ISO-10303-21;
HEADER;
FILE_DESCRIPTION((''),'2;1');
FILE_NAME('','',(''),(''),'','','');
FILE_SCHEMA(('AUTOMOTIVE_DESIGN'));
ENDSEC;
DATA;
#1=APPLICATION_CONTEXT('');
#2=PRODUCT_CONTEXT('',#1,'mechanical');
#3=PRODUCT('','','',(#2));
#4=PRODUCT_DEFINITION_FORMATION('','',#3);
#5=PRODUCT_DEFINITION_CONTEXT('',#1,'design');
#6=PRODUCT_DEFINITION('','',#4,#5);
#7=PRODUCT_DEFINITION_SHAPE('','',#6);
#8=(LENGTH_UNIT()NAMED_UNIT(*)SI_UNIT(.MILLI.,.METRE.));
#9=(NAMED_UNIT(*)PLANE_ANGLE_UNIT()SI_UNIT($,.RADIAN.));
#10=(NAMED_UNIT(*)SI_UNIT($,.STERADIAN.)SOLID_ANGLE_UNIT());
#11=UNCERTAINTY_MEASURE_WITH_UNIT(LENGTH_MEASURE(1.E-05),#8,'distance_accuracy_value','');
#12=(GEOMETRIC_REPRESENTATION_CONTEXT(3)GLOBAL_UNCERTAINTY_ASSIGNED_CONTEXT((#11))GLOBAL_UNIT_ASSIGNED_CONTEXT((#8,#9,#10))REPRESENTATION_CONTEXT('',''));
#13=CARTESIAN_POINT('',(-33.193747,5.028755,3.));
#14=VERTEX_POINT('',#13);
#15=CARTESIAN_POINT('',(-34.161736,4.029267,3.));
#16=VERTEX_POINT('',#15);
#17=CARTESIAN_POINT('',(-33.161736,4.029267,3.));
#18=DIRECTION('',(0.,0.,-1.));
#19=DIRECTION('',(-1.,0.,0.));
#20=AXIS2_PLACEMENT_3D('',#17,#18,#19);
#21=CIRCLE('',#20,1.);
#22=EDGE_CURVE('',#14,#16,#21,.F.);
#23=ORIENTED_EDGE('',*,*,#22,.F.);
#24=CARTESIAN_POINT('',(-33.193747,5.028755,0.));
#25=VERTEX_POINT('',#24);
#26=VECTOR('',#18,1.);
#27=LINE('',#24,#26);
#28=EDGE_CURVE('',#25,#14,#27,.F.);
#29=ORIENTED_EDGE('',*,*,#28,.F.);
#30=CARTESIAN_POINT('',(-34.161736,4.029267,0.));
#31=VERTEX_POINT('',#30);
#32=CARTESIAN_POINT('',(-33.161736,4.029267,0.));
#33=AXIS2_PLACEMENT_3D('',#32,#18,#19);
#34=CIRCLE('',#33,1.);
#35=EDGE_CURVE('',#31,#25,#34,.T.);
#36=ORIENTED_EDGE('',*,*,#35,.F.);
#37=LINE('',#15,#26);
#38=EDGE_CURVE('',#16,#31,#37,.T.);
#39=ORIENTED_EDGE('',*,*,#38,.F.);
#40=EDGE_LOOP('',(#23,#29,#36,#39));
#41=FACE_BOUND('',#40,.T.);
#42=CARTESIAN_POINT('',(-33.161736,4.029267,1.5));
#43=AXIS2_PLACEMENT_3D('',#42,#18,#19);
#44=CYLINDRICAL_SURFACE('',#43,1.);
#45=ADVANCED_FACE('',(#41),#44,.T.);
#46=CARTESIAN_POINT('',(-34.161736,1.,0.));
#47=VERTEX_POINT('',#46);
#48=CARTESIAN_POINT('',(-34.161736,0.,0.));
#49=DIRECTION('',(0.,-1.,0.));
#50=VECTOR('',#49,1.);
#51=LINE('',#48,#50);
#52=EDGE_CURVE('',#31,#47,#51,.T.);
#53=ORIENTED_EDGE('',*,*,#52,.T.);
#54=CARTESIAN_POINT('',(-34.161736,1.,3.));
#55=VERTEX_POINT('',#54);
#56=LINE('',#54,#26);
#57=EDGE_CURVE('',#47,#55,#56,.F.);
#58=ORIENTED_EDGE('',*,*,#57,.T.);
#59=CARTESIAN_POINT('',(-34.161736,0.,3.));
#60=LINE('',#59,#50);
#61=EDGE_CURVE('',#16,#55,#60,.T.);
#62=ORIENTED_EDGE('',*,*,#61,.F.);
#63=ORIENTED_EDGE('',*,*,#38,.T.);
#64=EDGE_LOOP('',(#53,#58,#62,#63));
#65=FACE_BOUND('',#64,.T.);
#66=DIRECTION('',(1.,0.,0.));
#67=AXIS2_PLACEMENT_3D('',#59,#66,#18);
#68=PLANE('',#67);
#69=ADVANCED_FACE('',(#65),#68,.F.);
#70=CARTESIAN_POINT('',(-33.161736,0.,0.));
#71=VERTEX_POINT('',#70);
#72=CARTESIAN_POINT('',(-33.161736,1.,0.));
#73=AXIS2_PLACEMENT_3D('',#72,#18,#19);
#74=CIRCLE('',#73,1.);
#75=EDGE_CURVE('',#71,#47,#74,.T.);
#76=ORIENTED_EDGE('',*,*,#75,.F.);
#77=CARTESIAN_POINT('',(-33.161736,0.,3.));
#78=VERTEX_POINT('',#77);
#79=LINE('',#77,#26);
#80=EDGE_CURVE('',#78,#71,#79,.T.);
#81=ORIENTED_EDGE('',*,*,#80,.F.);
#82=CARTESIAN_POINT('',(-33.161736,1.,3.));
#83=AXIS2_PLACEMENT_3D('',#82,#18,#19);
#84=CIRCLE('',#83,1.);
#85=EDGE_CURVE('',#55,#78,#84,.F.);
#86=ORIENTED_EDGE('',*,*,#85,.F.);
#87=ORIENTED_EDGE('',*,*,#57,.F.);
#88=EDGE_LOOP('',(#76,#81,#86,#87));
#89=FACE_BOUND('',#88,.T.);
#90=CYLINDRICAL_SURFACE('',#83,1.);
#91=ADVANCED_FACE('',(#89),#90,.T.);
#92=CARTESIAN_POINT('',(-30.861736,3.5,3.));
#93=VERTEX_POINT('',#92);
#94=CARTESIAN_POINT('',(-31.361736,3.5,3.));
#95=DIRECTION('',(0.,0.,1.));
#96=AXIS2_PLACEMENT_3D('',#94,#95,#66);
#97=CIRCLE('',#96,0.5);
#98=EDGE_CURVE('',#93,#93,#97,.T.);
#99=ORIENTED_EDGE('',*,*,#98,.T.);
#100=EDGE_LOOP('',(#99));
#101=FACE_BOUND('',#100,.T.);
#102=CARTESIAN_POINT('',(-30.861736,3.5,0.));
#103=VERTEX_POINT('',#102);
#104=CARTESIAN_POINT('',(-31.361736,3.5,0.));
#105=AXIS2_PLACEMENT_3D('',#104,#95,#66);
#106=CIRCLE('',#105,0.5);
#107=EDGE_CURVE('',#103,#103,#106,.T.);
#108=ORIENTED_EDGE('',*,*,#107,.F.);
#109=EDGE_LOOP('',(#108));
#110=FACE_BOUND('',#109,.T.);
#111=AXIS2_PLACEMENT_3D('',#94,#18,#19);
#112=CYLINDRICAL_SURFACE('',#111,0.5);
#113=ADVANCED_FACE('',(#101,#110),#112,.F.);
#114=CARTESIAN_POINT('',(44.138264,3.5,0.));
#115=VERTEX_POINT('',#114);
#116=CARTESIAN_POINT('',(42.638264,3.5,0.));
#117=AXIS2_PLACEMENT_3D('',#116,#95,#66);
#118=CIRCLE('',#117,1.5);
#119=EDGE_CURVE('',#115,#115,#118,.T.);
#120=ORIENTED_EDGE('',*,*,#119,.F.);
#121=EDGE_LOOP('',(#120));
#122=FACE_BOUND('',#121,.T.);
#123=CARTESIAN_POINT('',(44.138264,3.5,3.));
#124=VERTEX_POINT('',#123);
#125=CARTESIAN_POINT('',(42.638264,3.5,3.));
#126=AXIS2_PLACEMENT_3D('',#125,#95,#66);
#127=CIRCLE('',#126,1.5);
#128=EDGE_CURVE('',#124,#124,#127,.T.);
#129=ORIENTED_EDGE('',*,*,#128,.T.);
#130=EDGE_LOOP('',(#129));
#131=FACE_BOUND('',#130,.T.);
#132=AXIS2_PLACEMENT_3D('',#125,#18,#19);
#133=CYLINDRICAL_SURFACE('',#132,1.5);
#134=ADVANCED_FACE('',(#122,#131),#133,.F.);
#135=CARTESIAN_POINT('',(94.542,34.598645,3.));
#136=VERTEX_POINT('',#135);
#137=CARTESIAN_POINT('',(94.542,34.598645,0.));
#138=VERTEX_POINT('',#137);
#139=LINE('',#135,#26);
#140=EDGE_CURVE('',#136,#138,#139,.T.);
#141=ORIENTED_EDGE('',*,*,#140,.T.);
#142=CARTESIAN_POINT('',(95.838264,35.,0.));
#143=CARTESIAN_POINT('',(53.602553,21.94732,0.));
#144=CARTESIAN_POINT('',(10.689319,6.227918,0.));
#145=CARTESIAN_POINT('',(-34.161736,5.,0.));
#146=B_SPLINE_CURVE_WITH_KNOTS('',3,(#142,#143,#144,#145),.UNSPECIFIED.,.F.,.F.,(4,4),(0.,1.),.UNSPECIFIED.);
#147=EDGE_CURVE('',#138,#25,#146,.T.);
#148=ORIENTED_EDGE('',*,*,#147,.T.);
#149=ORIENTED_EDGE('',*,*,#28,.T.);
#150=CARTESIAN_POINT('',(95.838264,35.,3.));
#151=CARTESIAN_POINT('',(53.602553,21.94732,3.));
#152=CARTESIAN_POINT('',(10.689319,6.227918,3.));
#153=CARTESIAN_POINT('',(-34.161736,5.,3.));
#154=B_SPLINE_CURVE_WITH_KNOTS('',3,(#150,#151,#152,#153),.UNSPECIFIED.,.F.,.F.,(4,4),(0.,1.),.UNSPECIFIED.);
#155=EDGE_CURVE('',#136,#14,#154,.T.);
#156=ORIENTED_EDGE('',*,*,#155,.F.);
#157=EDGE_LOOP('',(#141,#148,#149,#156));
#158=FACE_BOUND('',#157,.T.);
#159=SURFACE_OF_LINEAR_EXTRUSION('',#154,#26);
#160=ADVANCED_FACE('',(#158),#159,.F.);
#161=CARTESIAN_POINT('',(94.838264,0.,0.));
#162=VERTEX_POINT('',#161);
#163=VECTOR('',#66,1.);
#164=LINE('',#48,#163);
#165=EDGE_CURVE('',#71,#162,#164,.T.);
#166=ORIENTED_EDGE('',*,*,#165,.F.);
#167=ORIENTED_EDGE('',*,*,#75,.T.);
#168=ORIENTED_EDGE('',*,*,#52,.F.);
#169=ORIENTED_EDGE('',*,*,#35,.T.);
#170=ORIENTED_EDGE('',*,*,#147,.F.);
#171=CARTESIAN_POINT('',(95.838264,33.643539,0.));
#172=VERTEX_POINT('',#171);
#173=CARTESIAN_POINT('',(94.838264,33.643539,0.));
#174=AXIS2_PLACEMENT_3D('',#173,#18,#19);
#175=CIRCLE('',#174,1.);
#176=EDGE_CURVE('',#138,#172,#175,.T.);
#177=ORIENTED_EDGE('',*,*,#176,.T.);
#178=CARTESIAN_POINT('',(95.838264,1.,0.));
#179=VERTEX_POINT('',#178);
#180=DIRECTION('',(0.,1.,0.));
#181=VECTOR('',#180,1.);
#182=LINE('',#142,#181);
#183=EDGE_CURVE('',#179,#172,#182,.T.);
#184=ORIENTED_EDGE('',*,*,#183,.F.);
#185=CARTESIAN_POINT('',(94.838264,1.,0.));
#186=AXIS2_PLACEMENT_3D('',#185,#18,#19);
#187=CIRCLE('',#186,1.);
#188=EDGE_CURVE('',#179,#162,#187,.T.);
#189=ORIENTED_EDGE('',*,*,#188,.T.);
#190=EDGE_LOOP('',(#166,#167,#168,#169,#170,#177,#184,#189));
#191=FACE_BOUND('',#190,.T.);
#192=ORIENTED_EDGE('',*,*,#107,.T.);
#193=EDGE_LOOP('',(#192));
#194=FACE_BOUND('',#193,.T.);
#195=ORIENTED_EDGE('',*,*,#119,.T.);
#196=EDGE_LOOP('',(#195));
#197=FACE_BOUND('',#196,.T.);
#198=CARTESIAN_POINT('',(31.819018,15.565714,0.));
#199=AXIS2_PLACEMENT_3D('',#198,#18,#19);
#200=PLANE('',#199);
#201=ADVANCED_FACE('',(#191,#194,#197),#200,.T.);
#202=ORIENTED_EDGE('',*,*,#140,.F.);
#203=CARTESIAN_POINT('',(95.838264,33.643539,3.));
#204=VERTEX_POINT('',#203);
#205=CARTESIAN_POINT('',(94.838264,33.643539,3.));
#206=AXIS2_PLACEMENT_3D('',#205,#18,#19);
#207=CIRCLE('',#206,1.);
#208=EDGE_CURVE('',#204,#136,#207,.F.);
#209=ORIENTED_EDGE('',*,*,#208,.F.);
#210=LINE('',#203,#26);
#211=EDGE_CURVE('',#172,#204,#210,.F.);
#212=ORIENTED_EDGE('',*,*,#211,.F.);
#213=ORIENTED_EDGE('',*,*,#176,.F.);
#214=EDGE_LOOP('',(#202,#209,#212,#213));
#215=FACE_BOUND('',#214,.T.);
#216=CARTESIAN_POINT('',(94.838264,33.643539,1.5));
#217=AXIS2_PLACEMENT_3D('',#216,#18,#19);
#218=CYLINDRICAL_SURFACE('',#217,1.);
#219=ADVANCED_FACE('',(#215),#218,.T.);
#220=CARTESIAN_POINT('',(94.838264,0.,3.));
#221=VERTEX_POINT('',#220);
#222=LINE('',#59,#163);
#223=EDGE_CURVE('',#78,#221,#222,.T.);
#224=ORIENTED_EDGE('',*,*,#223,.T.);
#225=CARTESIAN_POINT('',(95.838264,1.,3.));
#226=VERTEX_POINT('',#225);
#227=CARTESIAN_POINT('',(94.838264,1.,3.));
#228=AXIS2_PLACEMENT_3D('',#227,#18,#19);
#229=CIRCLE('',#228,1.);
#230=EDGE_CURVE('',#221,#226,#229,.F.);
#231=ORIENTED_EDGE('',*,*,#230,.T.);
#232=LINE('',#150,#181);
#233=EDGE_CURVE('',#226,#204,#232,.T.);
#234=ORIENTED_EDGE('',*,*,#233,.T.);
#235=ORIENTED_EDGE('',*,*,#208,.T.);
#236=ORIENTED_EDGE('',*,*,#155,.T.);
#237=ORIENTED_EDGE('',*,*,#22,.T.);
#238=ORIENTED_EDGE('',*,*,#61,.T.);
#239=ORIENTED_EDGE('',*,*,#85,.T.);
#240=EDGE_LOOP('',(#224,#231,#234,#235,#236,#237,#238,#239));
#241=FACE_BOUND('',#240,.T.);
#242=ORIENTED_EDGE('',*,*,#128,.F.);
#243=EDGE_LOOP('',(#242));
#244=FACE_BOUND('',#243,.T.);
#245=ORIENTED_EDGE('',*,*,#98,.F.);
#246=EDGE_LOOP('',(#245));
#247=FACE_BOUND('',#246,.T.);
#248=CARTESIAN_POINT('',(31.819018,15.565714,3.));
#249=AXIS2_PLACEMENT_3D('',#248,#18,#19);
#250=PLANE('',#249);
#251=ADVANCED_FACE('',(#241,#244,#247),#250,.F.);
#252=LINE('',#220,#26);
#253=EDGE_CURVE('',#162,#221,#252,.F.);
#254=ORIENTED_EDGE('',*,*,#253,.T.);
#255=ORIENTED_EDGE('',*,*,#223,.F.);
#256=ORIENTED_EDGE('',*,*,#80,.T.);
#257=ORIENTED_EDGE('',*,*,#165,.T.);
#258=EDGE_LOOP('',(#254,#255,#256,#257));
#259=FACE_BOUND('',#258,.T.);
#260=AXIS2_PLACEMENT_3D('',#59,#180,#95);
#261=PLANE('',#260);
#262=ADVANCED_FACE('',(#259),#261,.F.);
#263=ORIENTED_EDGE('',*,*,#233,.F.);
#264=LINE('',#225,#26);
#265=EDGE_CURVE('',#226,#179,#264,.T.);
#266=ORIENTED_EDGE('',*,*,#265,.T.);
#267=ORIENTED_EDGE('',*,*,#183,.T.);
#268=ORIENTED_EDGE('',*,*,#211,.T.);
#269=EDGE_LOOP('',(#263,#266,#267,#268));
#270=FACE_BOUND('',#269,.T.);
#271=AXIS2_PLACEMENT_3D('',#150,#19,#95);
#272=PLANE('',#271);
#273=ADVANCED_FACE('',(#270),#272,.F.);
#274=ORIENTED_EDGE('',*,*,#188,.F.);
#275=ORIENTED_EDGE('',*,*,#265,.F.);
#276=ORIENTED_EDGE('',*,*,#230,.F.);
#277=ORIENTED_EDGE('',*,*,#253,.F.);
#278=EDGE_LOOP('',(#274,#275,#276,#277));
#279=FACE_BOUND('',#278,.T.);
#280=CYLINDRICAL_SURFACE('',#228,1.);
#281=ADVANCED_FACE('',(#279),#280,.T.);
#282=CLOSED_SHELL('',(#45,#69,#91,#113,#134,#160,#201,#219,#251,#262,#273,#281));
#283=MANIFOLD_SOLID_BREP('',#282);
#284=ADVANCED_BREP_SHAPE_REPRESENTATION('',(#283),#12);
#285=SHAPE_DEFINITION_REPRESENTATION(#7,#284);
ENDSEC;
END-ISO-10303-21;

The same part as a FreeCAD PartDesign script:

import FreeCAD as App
import Part
import Sketcher

V = App.Vector


def edges_at(feature, points):
    """Names of the edges that pass closest to the given points."""
    edges = feature.Shape.Edges
    near = lambda p: min(range(len(edges)), key=lambda i: edges[i].distToShape(Part.Vertex(*p))[0])
    return sorted({f"Edge{near(p) + 1}" for p in points})

doc = App.newDocument("Part")
body = doc.addObject("PartDesign::Body", "Body")

# Sketch on XY plane
sketch1 = doc.addObject("Sketcher::SketchObject", "Sketch")
body.addObject(sketch1)
sketch1.AttachmentSupport = (doc.XY_Plane, [""])
sketch1.MapMode = "FlatFace"
sketch1.addGeometry(Part.LineSegment(V(-34.161736, 0, 0), V(95.838264, 0, 0)), False)
sketch1.addGeometry(Part.LineSegment(V(95.838264, 0, 0), V(95.838264, 35, 0)), False)
sketch1.addGeometry(Part.BSplineCurve([V(-34.161736, 5, 0), V(10.689319, 6.227918, 0), V(53.602553, 21.94732, 0), V(95.838264, 35, 0)], [4, 4], [0, 1], False, 3, [1, 1, 1, 1], False), False)
sketch1.addGeometry(Part.LineSegment(V(-34.161736, 5, 0), V(-34.161736, 0, 0)), False)
sketch1.addGeometry(Part.Circle(V(-31.361736, 3.5, 0), V(0, 0, 1), 0.5), False)
sketch1.addGeometry(Part.Circle(V(42.638264, 3.5, 0), V(0, 0, 1), 1.5), False)
sketch1.addConstraint(Sketcher.Constraint("Block", 2))
sketch1.addConstraint(Sketcher.Constraint("Coincident", 0, 2, 1, 1))
sketch1.addConstraint(Sketcher.Constraint("Coincident", 1, 2, 2, 2))
sketch1.addConstraint(Sketcher.Constraint("Coincident", 2, 1, 3, 1))
sketch1.addConstraint(Sketcher.Constraint("Coincident", 3, 2, 0, 1))
sketch1.addConstraint(Sketcher.Constraint("Horizontal", 0))
sketch1.addConstraint(Sketcher.Constraint("Vertical", 1))
sketch1.addConstraint(Sketcher.Constraint("Vertical", 3))
sketch1.addConstraint(Sketcher.Constraint("PointOnObject", 0, 2, -1))
sketch1.addConstraint(Sketcher.Constraint("Horizontal", 4, 3, 5, 3))
sketch1.addConstraint(Sketcher.Constraint("Diameter", 4, 1.0))
sketch1.addConstraint(Sketcher.Constraint("Diameter", 5, 3.0))
sketch1.addConstraint(Sketcher.Constraint("DistanceX", 4, 3, 5, 3, 74.0))
sketch1.addConstraint(Sketcher.Constraint("DistanceY", -1, 1, 4, 3, 3.5))
sketch1.addConstraint(Sketcher.Constraint("DistanceX", 5, 3, 0, 2, 53.2))
pad1 = doc.addObject("PartDesign::Pad", "Pad")
body.addObject(pad1)
pad1.Profile = sketch1
pad1.Length = 3
doc.recompute()

fillet = doc.addObject("PartDesign::Fillet", "Fillet")
body.addObject(fillet)
fillet.Base = (pad1, edges_at(pad1, [
    (-34.162, 0, 1.5),
    (-34.162, 5, 1.5),
    (95.838, 35, 1.5),
    (95.838, 0, 1.5),
]))
fillet.Radius = 1

doc.recompute()
